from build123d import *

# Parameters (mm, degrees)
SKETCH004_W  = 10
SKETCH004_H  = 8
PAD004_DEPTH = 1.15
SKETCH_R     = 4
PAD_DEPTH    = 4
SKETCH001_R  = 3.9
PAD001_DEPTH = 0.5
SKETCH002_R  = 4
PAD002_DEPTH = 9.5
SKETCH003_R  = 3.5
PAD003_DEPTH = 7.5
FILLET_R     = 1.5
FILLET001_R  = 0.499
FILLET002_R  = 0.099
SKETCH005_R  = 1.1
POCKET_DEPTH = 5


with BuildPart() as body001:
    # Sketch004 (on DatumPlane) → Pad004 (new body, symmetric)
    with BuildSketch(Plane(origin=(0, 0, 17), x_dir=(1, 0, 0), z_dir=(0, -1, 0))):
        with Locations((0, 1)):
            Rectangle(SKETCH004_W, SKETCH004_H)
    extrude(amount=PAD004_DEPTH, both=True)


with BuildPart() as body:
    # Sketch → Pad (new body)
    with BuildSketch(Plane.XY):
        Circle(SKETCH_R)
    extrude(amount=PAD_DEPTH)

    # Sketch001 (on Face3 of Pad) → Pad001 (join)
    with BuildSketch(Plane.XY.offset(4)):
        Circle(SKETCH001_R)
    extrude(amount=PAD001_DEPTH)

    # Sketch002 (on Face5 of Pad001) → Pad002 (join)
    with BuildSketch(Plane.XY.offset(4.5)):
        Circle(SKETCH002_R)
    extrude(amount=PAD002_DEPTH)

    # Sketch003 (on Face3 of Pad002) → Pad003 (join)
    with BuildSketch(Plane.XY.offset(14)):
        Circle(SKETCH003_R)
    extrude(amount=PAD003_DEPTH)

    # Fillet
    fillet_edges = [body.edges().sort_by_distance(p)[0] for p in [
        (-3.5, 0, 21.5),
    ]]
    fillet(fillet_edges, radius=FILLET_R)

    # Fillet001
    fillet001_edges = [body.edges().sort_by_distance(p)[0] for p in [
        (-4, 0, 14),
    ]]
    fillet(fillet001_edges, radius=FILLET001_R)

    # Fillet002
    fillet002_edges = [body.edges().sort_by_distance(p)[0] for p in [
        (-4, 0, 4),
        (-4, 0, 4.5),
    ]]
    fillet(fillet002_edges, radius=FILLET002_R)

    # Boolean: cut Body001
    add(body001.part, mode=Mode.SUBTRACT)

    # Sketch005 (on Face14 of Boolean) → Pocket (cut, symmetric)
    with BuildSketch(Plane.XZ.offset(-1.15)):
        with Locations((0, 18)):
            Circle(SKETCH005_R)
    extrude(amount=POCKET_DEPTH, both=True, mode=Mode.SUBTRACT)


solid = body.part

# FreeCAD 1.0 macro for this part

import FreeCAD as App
import Part
import Sketcher

V = App.Vector


def edges_at(feature, points):
    """Names of the edges that pass closest to the given points."""
    edges = feature.Shape.Edges
    near = lambda p: min(range(len(edges)), key=lambda i: edges[i].distToShape(Part.Vertex(*p))[0])
    return sorted({f"Edge{near(p) + 1}" for p in points})

doc = App.newDocument("Part")
body = doc.addObject("PartDesign::Body", "Body")

# Sketch on XZ plane
sketch1 = body.newObject("Sketcher::SketchObject", "Sketch")
sketch1.AttachmentSupport = (doc.getObject("XZ_Plane"), [""])
sketch1.MapMode = "FlatFace"
sketch1.addGeometry([
    Part.LineSegment(V(-5, 22, 0), V(-5, 14, 0)),
    Part.LineSegment(V(-5, 14, 0), V(5, 14, 0)),
    Part.LineSegment(V(5, 14, 0), V(5, 22, 0)),
    Part.LineSegment(V(5, 22, 0), V(-5, 22, 0)),
], False)
sketch1.addConstraint([
    Sketcher.Constraint("Coincident", 0, 2, 1, 1),
    Sketcher.Constraint("Coincident", 1, 2, 2, 1),
    Sketcher.Constraint("Coincident", 2, 2, 3, 1),
    Sketcher.Constraint("Coincident", 3, 2, 0, 1),
    Sketcher.Constraint("Vertical", 0),
    Sketcher.Constraint("Horizontal", 1),
    Sketcher.Constraint("Vertical", 2),
    Sketcher.Constraint("Horizontal", 3),
    Sketcher.Constraint("DistanceX", 1, 1, 1, 2, 10.0),
    Sketcher.Constraint("DistanceY", 0, 2, 0, 1, 8.0),
    Sketcher.Constraint("DistanceX", 0, 2, -1, 1, 5.0),
    Sketcher.Constraint("DistanceY", -1, 1, 0, 2, 14.0),
])
pad1 = body.newObject("PartDesign::Pad", "Pad")
pad1.Profile = sketch1
pad1.Length = 2.3
pad1.Midplane = True
body2 = doc.addObject("PartDesign::Body", "Body001")

# Sketch on XY plane
sketch2 = body2.newObject("Sketcher::SketchObject", "Sketch001")
sketch2.AttachmentSupport = (doc.getObject("XY_Plane001"), [""])
sketch2.MapMode = "FlatFace"
sketch2.addGeometry(Part.Circle(V(0, 0, 0), V(0, 0, 1), 4), False)
sketch2.addConstraint([
    Sketcher.Constraint("Coincident", 0, 3, -1, 1),
    Sketcher.Constraint("Diameter", 0, 8.0),
])
pad2 = body2.newObject("PartDesign::Pad", "Pad001")
pad2.Profile = sketch2
pad2.Length = 4

# Sketch on XY plane
sketch3 = body2.newObject("Sketcher::SketchObject", "Sketch002")
sketch3.AttachmentSupport = (doc.getObject("XY_Plane001"), [""])
sketch3.MapMode = "FlatFace"
sketch3.AttachmentOffset = App.Placement(V(0, 0, 4), App.Rotation())
sketch3.addGeometry(Part.Circle(V(0, 0, 0), V(0, 0, 1), 3.9), False)
sketch3.addConstraint([
    Sketcher.Constraint("Coincident", 0, 3, -1, 1),
    Sketcher.Constraint("Diameter", 0, 7.8),
])
pad3 = body2.newObject("PartDesign::Pad", "Pad002")
pad3.Profile = sketch3
pad3.Length = 0.5

# Sketch on XY plane
sketch4 = body2.newObject("Sketcher::SketchObject", "Sketch003")
sketch4.AttachmentSupport = (doc.getObject("XY_Plane001"), [""])
sketch4.MapMode = "FlatFace"
sketch4.AttachmentOffset = App.Placement(V(0, 0, 4.5), App.Rotation())
sketch4.addGeometry(Part.Circle(V(0, 0, 0), V(0, 0, 1), 4), False)
sketch4.addConstraint([
    Sketcher.Constraint("Coincident", 0, 3, -1, 1),
    Sketcher.Constraint("Diameter", 0, 8.0),
])
pad4 = body2.newObject("PartDesign::Pad", "Pad003")
pad4.Profile = sketch4
pad4.Length = 9.5

# Sketch on XY plane
sketch5 = body2.newObject("Sketcher::SketchObject", "Sketch004")
sketch5.AttachmentSupport = (doc.getObject("XY_Plane001"), [""])
sketch5.MapMode = "FlatFace"
sketch5.AttachmentOffset = App.Placement(V(0, 0, 14), App.Rotation())
sketch5.addGeometry(Part.Circle(V(0, 0, 0), V(0, 0, 1), 3.5), False)
sketch5.addConstraint([
    Sketcher.Constraint("Coincident", 0, 3, -1, 1),
    Sketcher.Constraint("Diameter", 0, 7.0),
])
pad5 = body2.newObject("PartDesign::Pad", "Pad004")
pad5.Profile = sketch5
pad5.Length = 7.5
doc.recompute()

fillet = body2.newObject("PartDesign::Fillet", "Fillet")
fillet.Base = (pad5, edges_at(pad5, [(-3.5, 0, 21.5)]))
fillet.Radius = 1.5
doc.recompute()

fillet2 = body2.newObject("PartDesign::Fillet", "Fillet001")
fillet2.Base = (fillet, edges_at(fillet, [(-4, 0, 14)]))
fillet2.Radius = 0.499
doc.recompute()

fillet3 = body2.newObject("PartDesign::Fillet", "Fillet002")
fillet3.Base = (fillet2, edges_at(fillet2, [(-4, 0, 4), (-4, 0, 4.5)]))
fillet3.Radius = 0.099
doc.recompute()

boolean = body2.newObject("PartDesign::Boolean", "Boolean")
boolean.Type = "Cut"
boolean.addObjects([body])

# Sketch on XZ plane
sketch6 = body2.newObject("Sketcher::SketchObject", "Sketch005")
sketch6.AttachmentSupport = (doc.getObject("XZ_Plane001"), [""])
sketch6.MapMode = "FlatFace"
sketch6.AttachmentOffset = App.Placement(V(0, 0, -1.15), App.Rotation())
sketch6.addGeometry(Part.Circle(V(0, 18, 0), V(0, 0, 1), 1.1), False)
sketch6.addConstraint([
    Sketcher.Constraint("PointOnObject", 0, 3, -2),
    Sketcher.Constraint("Diameter", 0, 2.2),
    Sketcher.Constraint("DistanceY", -1, 1, 0, 3, 18.0),
])
pocket1 = body2.newObject("PartDesign::Pocket", "Pocket")
pocket1.Profile = sketch6
pocket1.Length = 10
pocket1.Midplane = True

doc.recompute()
